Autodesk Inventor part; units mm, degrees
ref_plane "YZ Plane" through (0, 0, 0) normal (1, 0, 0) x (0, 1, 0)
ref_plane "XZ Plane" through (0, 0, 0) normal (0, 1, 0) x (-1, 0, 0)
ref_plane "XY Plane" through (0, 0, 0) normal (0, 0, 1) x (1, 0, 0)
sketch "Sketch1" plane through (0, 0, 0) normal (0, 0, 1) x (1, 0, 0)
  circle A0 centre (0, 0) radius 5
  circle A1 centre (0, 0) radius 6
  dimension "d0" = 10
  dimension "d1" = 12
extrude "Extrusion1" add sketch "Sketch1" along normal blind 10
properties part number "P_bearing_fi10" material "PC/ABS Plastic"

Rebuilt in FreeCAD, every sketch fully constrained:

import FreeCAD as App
import Part
import Sketcher

doc = App.newDocument("Part")
body = doc.addObject("PartDesign::Body", "Body")

# Sketch on XY plane
sketch1 = body.newObject("Sketcher::SketchObject", "Sketch")
sketch1.AttachmentSupport = (doc.getObject("XY_Plane"), [""])
sketch1.MapMode = "FlatFace"
sketch1.addGeometry([
    Part.Circle(App.Vector(0, 0, 0), App.Vector(0, 0, 1), 6),
    Part.Circle(App.Vector(0, 0, 0), App.Vector(0, 0, 1), 5),
], False)
sketch1.addConstraint([
    Sketcher.Constraint("Coincident", 0, 3, -1, 1),
    Sketcher.Constraint("Coincident", 1, 3, -1, 1),
    Sketcher.Constraint("Diameter", 0, 12.0),
    Sketcher.Constraint("Diameter", 1, 10.0),
])
pad1 = body.newObject("PartDesign::Pad", "Pad")
pad1.Profile = sketch1
pad1.Length = 10

doc.recompute()
